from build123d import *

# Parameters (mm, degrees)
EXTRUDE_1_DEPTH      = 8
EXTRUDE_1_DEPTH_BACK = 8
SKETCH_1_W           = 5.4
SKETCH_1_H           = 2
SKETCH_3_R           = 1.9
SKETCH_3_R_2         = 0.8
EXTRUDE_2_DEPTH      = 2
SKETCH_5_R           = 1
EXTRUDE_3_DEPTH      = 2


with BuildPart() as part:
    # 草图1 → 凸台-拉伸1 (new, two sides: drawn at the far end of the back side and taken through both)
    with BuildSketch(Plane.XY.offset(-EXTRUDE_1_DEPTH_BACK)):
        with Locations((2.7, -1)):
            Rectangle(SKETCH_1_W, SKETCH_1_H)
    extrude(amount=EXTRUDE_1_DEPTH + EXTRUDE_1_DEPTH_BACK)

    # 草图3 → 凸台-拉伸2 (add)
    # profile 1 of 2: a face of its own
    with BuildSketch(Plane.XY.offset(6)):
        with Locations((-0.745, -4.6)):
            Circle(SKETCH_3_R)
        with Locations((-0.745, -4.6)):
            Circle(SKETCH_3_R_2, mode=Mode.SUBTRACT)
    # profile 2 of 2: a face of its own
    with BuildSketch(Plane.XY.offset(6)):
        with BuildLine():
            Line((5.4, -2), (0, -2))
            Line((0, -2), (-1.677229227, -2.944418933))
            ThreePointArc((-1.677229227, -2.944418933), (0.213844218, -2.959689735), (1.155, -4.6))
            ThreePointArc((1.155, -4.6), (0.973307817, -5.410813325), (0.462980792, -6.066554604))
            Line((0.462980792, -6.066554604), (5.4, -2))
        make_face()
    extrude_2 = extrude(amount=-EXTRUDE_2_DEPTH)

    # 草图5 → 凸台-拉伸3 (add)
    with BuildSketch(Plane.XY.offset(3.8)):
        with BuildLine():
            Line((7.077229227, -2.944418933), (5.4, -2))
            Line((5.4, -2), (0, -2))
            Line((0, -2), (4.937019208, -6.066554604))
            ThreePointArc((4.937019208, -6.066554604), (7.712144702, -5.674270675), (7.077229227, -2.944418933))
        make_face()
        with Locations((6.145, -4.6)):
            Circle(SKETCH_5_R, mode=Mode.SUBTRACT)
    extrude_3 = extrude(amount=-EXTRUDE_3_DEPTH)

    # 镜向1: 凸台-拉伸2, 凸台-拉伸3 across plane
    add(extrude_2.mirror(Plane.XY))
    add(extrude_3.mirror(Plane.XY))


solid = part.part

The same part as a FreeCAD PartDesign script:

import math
import FreeCAD as App
import Part
import Sketcher
from FreeCAD import Vector
Q = App.Units.Quantity


def add_polygon(sketch, points):
    """Adds a closed chain of lines whose ends are joined by coincident constraints."""
    first, n = sketch.GeometryCount, len(points)
    for a, b in zip(points, points[1:] + points[:1]):
        sketch.addGeometry(Part.LineSegment(App.Vector(*a, 0), App.Vector(*b, 0)), False)
    for i in range(n):
        sketch.addConstraint(Sketcher.Constraint("Coincident", first + i, 2, first + (i + 1) % n, 1))

doc = App.newDocument("Part")
body = doc.addObject("PartDesign::Body", "Body")

sketch1 = body.newObject("Sketcher::SketchObject", "Sketch")
sketch1.AttachmentSupport = (doc.getObject("XY_Plane"), [""])
sketch1.MapMode = "FlatFace"
add_polygon(sketch1, [(0, 0), (0, -2), (5.4, -2), (5.4, 0)])
sketch1.addConstraint(Sketcher.Constraint("Vertical", 0))
sketch1.addConstraint(Sketcher.Constraint("Horizontal", 1))
sketch1.addConstraint(Sketcher.Constraint("Vertical", 2))
sketch1.addConstraint(Sketcher.Constraint("Horizontal", 3))
sketch1.addConstraint(Sketcher.Constraint("Coincident", 3, 2, -1, 1))
sketch1.addConstraint(Sketcher.Constraint("DistanceY", 0, 2, 0, 1, Q("2 mm")))
sketch1.addConstraint(Sketcher.Constraint("DistanceX", 1, 1, 1, 2, Q("5.4 mm")))
pad1 = body.newObject("PartDesign::Pad", "Pad")
pad1.Profile = sketch1
pad1.Type = "TwoLengths"
pad1.Length = 8
pad1.Length2 = 8

sketch2 = body.newObject("Sketcher::SketchObject", "Sketch001")
sketch2.AttachmentSupport = (doc.getObject("XY_Plane"), [""])
sketch2.MapMode = "FlatFace"
sketch2.AttachmentOffset = App.Placement(Vector(0, 0, 6), App.Rotation())
sketch2.addGeometry(Part.ArcOfCircle(Part.Circle(Vector(-0.7, -4.6, 0), Vector(0, 0, 1), 1.9), math.radians(119), math.radians(309)), False)
sketch2.addGeometry(Part.LineSegment(Vector(0.5, -6.1, 0), Vector(5.4, -2, 0)), False)
sketch2.addGeometry(Part.LineSegment(Vector(5.4, -2, 0), Vector(0, -2, 0)), False)
sketch2.addGeometry(Part.LineSegment(Vector(0, -2, 0), Vector(-1.7, -2.9, 0)), False)
sketch2.addGeometry(Part.Circle(Vector(-0.7, -4.6, 0), Vector(0, 0, 1), 0.8), False)
sketch2.addConstraint(Sketcher.Constraint("Tangent", 0, 2, 1, 1))
sketch2.addConstraint(Sketcher.Constraint("Coincident", 1, 2, 2, 1))
sketch2.addConstraint(Sketcher.Constraint("Coincident", 2, 2, 3, 1))
sketch2.addConstraint(Sketcher.Constraint("Tangent", 3, 2, 0, 1))
sketch2.addConstraint(Sketcher.Constraint("Horizontal", 2))
sketch2.addConstraint(Sketcher.Constraint("Coincident", 4, 3, 0, 3))
sketch2.addConstraint(Sketcher.Constraint("PointOnObject", 2, 2, -2))
sketch2.addConstraint(Sketcher.Constraint("Diameter", 4, Q("1.6 mm")))
sketch2.addConstraint(Sketcher.Constraint("Radius", 0, Q("1.9 mm")))
sketch2.addConstraint(Sketcher.Constraint("DistanceX", 2, 2, 2, 1, Q("5.4 mm")))
sketch2.addConstraint(Sketcher.Constraint("DistanceY", 1, 2, -1, 1, Q("2 mm")))
sketch2.addConstraint(Sketcher.Constraint("DistanceY", 0, 3, -1, 1, Q("4.6 mm")))
sketch2.addConstraint(Sketcher.Constraint("DistanceX", 0, 3, -1, 1, Q("0.745 mm")))
pad2 = body.newObject("PartDesign::Pad", "Pad001")
pad2.Profile = sketch2
pad2.Length = 2
pad2.Reversed = True

sketch3 = body.newObject("Sketcher::SketchObject", "Sketch002")
sketch3.AttachmentSupport = (doc.getObject("XY_Plane"), [""])
sketch3.MapMode = "FlatFace"
sketch3.AttachmentOffset = App.Placement(Vector(0, 0, 3.8), App.Rotation())
sketch3.addGeometry(Part.LineSegment(Vector(7.1, -2.9, 0), Vector(5.4, -2, 0)), False)
sketch3.addGeometry(Part.LineSegment(Vector(5.4, -2, 0), Vector(0, -2, 0)), False)
sketch3.addGeometry(Part.LineSegment(Vector(0, -2, 0), Vector(4.9, -6.1, 0)), False)
sketch3.addGeometry(Part.ArcOfCircle(Part.Circle(Vector(6.1, -4.6, 0), Vector(0, 0, 1), 1.9), math.radians(-129), math.radians(61)), False)
sketch3.addGeometry(Part.Circle(Vector(6.1, -4.6, 0), Vector(0, 0, 1), 1), False)
sketch3.addConstraint(Sketcher.Constraint("Coincident", 0, 2, 1, 1))
sketch3.addConstraint(Sketcher.Constraint("Coincident", 1, 2, 2, 1))
sketch3.addConstraint(Sketcher.Constraint("Tangent", 2, 2, 3, 1))
sketch3.addConstraint(Sketcher.Constraint("Tangent", 3, 2, 0, 1))
sketch3.addConstraint(Sketcher.Constraint("Horizontal", 1))
sketch3.addConstraint(Sketcher.Constraint("Coincident", 4, 3, 3, 3))
sketch3.addConstraint(Sketcher.Constraint("PointOnObject", 1, 2, -2))
sketch3.addConstraint(Sketcher.Constraint("Diameter", 4, Q("2 mm")))
sketch3.addConstraint(Sketcher.Constraint("Radius", 3, Q("1.9 mm")))
sketch3.addConstraint(Sketcher.Constraint("DistanceX", 1, 2, 1, 1, Q("5.4 mm")))
sketch3.addConstraint(Sketcher.Constraint("DistanceY", 0, 2, -1, 1, Q("2 mm")))
sketch3.addConstraint(Sketcher.Constraint("DistanceY", 3, 3, -1, 1, Q("4.6 mm")))
sketch3.addConstraint(Sketcher.Constraint("DistanceX", -1, 1, 3, 3, Q("6.145 mm")))
pad3 = body.newObject("PartDesign::Pad", "Pad002")
pad3.Profile = sketch3
pad3.Length = 2
pad3.Reversed = True
doc.recompute()

mirrored = body.newObject("PartDesign::Mirrored", "Mirrored")
mirrored.Originals = [pad2, pad3]
mirrored.MirrorPlane = (doc.getObject("XY_Plane"), [""])
body.Tip = mirrored

doc.recompute()
